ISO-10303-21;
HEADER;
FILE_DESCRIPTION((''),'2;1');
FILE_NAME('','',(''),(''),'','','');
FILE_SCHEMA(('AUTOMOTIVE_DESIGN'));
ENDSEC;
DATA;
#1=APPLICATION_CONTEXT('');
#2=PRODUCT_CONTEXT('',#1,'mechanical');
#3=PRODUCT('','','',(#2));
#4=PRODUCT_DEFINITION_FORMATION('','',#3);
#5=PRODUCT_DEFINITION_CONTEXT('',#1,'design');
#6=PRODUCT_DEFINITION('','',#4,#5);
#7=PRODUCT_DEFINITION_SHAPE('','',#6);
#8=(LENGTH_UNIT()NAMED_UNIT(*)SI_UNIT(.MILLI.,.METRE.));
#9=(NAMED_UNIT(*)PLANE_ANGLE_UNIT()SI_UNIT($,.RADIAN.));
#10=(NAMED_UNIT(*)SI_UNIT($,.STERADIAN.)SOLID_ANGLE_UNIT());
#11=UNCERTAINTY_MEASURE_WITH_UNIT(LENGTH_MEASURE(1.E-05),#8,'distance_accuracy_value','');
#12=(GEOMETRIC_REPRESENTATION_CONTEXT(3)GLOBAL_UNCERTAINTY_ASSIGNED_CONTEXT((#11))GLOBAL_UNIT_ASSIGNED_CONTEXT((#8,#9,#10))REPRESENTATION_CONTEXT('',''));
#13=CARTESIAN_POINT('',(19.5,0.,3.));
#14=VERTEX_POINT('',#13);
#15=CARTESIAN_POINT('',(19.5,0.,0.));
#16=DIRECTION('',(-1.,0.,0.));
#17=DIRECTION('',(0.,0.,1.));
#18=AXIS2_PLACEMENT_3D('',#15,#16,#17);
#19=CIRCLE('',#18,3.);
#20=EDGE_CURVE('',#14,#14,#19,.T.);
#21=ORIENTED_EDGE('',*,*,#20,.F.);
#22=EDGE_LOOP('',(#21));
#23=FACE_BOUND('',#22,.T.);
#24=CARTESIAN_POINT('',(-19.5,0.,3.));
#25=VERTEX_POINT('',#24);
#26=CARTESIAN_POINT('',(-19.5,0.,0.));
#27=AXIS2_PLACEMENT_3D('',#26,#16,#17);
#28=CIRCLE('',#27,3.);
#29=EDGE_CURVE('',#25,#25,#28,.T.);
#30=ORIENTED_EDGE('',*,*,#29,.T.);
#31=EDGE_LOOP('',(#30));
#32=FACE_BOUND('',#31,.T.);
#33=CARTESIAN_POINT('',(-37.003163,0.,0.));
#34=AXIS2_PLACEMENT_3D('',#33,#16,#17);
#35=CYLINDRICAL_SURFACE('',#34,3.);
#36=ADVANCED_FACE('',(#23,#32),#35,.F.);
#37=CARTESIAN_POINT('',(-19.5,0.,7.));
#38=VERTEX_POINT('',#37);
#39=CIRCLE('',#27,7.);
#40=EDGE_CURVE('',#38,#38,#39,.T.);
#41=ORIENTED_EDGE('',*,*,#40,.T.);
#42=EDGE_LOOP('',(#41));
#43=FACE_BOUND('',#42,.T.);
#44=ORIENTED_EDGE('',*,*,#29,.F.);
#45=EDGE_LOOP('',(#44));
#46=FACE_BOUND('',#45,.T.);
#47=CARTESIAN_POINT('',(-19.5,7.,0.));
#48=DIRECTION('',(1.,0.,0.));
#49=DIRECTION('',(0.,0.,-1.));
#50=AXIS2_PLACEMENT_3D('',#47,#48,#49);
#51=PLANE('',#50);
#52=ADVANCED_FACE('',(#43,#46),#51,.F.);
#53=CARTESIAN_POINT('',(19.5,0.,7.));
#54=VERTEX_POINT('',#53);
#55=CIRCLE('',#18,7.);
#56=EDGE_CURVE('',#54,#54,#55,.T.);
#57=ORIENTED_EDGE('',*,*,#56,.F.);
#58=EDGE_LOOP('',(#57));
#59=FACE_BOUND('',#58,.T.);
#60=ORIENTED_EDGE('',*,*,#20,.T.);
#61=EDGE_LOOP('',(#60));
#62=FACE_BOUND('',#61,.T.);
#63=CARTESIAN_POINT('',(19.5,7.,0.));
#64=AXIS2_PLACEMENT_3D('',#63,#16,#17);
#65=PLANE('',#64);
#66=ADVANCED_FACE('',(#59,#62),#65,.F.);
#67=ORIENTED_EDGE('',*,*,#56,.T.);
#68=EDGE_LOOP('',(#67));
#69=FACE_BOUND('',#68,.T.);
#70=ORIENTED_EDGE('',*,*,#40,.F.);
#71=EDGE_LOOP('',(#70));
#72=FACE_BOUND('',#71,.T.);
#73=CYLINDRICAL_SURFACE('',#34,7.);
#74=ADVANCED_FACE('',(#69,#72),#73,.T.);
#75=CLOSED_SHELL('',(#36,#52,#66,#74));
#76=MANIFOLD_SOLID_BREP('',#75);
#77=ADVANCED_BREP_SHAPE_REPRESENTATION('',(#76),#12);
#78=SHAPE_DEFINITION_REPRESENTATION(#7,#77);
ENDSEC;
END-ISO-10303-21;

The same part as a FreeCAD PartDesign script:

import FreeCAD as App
import Part
import Sketcher

V = App.Vector

doc = App.newDocument("Part")
params = doc.addObject("Spreadsheet::Sheet", "Params")
for row, (alias, value) in enumerate([
    ("sketch1_width", "39 mm"),
    ("sketch1_height", "4 mm"),
    ("revolution_angle", "360 deg"),
], start=1):
    params.set(f"A{row}", alias)
    params.set(f"B{row}", "=" + value)
    params.setAlias(f"B{row}", alias)

body = doc.addObject("PartDesign::Body", "Body")

sketch1 = body.newObject("Sketcher::SketchObject", "Sketch")
sketch1.AttachmentSupport = (doc.getObject("XY_Plane"), [""])
sketch1.MapMode = "FlatFace"
sketch1.addGeometry([
    Part.LineSegment(V(-19.5, 7, 0), V(-19.5, 3, 0)),
    Part.LineSegment(V(-19.5, 3, 0), V(19.5, 3, 0)),
    Part.LineSegment(V(19.5, 3, 0), V(19.5, 7, 0)),
    Part.LineSegment(V(19.5, 7, 0), V(-19.5, 7, 0)),
], False)
sketch1.addConstraint([
    Sketcher.Constraint("Coincident", 0, 2, 1, 1),
    Sketcher.Constraint("Coincident", 1, 2, 2, 1),
    Sketcher.Constraint("Coincident", 2, 2, 3, 1),
    Sketcher.Constraint("Coincident", 3, 2, 0, 1),
    Sketcher.Constraint("Vertical", 0),
    Sketcher.Constraint("Horizontal", 1),
    Sketcher.Constraint("Vertical", 2),
    Sketcher.Constraint("Horizontal", 3),
    Sketcher.Constraint("DistanceX", 1, 1, 1, 2, 39.0),
    Sketcher.Constraint("DistanceY", 0, 2, 0, 1, 4.0),
    Sketcher.Constraint("DistanceY", -1, 1, 0, 2, 3.0),
    Sketcher.Constraint("DistanceX", 0, 2, -1, 1, 19.5),
])
sketch1.setExpression("Constraints[8]", "Params.sketch1_width")
sketch1.setExpression("Constraints[9]", "Params.sketch1_height")
revolution = body.newObject("PartDesign::Revolution", "Revolution")
revolution.Profile = sketch1
revolution.ReferenceAxis = (sketch1, ["H_Axis"])
revolution.setExpression("Angle", "Params.revolution_angle")

doc.recompute()
